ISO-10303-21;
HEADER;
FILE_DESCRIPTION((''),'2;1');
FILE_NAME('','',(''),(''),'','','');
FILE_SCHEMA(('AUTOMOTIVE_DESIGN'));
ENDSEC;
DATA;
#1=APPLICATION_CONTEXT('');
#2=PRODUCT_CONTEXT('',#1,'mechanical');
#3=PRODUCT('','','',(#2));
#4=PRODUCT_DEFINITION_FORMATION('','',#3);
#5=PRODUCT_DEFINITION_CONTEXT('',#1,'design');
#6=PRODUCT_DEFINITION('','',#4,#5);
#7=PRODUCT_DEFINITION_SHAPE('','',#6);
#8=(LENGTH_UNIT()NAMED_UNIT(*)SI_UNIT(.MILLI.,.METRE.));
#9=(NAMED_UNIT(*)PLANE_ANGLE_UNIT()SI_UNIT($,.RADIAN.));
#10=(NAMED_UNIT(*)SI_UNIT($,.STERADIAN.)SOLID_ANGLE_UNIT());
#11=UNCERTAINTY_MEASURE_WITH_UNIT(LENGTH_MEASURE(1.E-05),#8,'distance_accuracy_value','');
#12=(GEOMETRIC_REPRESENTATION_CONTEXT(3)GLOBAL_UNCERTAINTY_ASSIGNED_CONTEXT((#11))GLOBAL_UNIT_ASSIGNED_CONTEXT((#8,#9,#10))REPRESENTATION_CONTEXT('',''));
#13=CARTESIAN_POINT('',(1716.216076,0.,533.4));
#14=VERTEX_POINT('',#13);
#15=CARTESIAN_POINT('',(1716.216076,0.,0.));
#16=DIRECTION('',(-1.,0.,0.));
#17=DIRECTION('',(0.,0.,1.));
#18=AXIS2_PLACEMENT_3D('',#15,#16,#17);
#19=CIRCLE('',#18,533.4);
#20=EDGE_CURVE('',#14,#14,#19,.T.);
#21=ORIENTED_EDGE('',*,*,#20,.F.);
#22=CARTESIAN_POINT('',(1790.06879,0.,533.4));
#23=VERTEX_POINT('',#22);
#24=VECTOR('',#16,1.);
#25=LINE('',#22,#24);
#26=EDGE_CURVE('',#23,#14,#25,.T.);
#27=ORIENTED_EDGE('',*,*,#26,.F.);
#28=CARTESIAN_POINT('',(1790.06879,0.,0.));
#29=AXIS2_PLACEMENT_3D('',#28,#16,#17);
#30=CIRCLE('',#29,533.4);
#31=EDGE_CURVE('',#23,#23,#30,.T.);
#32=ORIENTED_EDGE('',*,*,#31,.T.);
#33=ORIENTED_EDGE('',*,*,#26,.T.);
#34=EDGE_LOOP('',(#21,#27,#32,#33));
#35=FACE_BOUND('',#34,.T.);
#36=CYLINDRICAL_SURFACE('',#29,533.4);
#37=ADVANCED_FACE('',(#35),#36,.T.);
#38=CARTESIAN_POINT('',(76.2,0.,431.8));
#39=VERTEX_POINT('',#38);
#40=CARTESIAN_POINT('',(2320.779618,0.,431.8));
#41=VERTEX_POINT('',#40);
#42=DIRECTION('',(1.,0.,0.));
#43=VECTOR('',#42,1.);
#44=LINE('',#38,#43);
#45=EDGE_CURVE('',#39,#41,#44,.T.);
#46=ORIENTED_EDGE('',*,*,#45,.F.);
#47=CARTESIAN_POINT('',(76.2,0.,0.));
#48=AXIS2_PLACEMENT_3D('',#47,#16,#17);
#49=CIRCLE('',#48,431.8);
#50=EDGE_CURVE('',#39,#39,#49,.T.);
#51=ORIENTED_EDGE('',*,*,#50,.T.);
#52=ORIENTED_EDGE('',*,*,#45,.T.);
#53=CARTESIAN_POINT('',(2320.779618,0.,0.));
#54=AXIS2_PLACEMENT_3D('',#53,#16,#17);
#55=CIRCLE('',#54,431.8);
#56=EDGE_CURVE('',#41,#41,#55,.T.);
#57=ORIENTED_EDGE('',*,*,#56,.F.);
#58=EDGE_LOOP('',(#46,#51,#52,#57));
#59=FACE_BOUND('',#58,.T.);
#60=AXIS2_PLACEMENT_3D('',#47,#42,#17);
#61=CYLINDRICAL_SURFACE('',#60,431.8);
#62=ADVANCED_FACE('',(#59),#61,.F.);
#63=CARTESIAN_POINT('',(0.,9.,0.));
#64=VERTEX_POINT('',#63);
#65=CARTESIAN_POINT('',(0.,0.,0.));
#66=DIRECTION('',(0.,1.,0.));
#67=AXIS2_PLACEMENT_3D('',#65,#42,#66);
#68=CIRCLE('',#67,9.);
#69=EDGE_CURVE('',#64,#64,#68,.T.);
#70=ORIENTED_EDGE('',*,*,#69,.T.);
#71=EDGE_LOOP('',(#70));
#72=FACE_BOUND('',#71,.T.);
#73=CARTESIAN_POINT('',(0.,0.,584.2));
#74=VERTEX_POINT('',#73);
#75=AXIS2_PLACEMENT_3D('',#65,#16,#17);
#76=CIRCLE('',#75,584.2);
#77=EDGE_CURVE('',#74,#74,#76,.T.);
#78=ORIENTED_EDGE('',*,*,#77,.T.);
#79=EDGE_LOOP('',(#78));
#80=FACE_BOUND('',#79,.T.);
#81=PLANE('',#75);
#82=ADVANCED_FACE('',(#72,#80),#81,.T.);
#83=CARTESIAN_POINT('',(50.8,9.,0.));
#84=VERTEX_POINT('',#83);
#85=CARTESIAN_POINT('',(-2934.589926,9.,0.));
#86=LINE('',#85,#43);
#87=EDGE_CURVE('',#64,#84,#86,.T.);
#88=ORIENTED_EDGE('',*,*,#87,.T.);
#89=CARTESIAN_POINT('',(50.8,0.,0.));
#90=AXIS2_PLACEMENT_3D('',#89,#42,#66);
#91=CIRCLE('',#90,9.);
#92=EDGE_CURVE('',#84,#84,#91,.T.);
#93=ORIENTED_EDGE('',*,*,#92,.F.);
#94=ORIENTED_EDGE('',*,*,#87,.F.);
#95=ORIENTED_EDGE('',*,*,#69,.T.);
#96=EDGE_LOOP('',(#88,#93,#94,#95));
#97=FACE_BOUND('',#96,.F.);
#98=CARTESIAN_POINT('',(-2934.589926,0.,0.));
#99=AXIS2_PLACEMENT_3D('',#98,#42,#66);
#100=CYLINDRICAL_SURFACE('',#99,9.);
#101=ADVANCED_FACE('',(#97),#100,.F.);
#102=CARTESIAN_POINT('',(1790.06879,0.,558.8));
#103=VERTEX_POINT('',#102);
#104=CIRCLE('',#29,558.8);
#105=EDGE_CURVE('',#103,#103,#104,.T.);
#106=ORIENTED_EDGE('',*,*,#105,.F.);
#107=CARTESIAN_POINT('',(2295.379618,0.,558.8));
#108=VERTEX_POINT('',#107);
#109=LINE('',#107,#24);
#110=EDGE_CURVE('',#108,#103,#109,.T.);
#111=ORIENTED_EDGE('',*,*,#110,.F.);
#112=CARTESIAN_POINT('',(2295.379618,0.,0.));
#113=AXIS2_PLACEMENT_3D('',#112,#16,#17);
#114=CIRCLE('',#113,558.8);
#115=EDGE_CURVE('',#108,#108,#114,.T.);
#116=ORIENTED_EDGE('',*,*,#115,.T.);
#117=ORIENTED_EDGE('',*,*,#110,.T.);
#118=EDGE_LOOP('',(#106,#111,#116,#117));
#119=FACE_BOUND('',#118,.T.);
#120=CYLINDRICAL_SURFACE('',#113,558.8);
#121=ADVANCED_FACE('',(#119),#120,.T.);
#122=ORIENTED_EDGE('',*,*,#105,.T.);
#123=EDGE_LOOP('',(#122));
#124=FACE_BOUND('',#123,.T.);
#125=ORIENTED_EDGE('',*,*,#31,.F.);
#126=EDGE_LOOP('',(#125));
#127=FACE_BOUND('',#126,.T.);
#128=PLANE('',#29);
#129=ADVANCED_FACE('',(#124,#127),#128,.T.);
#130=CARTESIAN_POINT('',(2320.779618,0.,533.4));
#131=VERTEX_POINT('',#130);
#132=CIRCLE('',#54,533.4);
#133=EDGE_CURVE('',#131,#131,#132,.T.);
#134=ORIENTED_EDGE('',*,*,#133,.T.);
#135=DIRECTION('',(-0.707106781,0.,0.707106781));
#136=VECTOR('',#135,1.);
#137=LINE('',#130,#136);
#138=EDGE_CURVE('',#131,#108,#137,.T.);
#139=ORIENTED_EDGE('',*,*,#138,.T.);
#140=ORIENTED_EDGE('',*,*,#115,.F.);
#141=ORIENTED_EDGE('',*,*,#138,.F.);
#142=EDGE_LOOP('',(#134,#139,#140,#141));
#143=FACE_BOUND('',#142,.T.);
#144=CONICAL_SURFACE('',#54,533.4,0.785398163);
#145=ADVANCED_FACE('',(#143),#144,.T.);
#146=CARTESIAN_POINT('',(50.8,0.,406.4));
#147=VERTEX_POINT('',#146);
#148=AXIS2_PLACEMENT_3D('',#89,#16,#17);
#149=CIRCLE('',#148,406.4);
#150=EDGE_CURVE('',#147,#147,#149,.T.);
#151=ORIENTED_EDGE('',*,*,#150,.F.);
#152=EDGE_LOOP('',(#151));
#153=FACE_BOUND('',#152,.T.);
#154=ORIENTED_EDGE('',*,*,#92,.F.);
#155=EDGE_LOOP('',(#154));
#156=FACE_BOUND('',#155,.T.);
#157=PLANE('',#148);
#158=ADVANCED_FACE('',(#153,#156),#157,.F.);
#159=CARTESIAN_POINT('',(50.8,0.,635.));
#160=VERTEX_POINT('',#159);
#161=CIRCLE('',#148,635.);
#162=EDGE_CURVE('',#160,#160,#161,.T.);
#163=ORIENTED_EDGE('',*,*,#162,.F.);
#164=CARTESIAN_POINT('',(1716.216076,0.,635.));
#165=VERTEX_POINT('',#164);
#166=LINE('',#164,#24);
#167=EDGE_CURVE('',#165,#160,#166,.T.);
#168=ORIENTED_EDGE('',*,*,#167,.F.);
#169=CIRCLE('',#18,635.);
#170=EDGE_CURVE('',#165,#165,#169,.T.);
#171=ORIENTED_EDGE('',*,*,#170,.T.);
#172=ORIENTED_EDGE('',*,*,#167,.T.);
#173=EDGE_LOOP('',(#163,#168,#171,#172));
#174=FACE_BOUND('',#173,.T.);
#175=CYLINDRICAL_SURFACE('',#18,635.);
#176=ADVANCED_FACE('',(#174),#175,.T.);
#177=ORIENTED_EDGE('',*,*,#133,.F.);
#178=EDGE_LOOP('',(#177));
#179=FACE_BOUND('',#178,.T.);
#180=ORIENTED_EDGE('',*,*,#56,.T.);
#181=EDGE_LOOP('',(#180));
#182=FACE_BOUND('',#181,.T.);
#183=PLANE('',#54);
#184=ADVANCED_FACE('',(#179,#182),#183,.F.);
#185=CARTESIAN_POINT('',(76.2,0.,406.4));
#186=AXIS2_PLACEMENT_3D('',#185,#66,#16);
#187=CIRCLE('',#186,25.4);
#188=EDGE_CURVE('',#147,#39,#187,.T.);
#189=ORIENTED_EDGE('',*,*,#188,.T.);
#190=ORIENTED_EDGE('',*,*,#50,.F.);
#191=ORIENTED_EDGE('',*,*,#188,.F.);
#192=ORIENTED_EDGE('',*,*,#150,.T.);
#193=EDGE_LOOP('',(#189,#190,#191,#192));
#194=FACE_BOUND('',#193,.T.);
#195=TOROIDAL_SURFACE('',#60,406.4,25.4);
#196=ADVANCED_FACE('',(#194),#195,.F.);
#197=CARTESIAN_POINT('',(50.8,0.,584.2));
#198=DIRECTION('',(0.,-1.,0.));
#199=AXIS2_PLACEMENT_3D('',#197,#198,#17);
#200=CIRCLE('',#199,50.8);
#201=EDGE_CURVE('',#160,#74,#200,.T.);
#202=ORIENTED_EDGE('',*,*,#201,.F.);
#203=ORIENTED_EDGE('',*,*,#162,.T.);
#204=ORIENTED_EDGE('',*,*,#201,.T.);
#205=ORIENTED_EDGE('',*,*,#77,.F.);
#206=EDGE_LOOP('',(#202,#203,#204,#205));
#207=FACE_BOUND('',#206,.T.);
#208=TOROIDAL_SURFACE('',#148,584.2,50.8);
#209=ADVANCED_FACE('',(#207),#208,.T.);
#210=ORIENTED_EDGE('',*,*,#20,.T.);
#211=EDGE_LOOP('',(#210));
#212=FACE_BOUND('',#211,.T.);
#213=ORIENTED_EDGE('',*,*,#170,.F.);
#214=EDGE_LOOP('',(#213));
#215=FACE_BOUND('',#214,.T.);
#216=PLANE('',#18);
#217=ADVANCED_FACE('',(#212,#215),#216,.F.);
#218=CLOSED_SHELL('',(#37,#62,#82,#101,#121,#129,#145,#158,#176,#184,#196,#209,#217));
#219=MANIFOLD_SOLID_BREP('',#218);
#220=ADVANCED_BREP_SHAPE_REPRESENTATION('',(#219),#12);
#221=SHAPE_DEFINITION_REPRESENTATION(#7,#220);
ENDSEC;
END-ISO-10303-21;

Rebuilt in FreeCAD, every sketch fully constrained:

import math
import FreeCAD as App
import Part
import Sketcher

V = App.Vector
Q = App.Units.Quantity

doc = App.newDocument("Part")
body = doc.addObject("PartDesign::Body", "Body")

# Sketch on XZ plane
sketch1 = body.newObject("Sketcher::SketchObject", "Sketch")
sketch1.AttachmentSupport = (doc.getObject("XZ_Plane"), [""])
sketch1.MapMode = "FlatFace"
sketch1.addGeometry([
    Part.LineSegment(V(0, 584, 0), V(0, 0, 0)),  # 0
    Part.LineSegment(V(0, 0, 0), V(51, 0, 0)),  # 1
    Part.LineSegment(V(51, 0, 0), V(51, 406, 0)),  # 2
    Part.ArcOfCircle(Part.Circle(V(76, 406, 0), V(0, 0, 1), 25), math.radians(90), math.radians(180)),  # 3
    Part.LineSegment(V(76, 432, 0), V(2321, 432, 0)),  # 4
    Part.LineSegment(V(2321, 432, 0), V(2321, 533, 0)),  # 5
    Part.LineSegment(V(2321, 533, 0), V(2295, 559, 0)),  # 6
    Part.LineSegment(V(2295, 559, 0), V(1790, 559, 0)),  # 7
    Part.LineSegment(V(1790, 559, 0), V(1790, 533, 0)),  # 8
    Part.LineSegment(V(1790, 533, 0), V(1716, 533, 0)),  # 9
    Part.LineSegment(V(1716, 533, 0), V(1716, 635, 0)),  # 10
    Part.LineSegment(V(1716, 635, 0), V(51, 635, 0)),  # 11
    Part.ArcOfCircle(Part.Circle(V(51, 584, 0), V(0, 0, 1), 51), math.radians(90), math.radians(180)),  # 12
], False)
sketch1.addConstraint([
    Sketcher.Constraint("Coincident", 0, 2, 1, 1),
    Sketcher.Constraint("Coincident", 1, 2, 2, 1),
    Sketcher.Constraint("Tangent", 2, 2, 3, 2),
    Sketcher.Constraint("Tangent", 3, 1, 4, 1),
    Sketcher.Constraint("Coincident", 4, 2, 5, 1),
    Sketcher.Constraint("Coincident", 5, 2, 6, 1),
    Sketcher.Constraint("Coincident", 6, 2, 7, 1),
    Sketcher.Constraint("Coincident", 7, 2, 8, 1),
    Sketcher.Constraint("Coincident", 8, 2, 9, 1),
    Sketcher.Constraint("Coincident", 9, 2, 10, 1),
    Sketcher.Constraint("Coincident", 10, 2, 11, 1),
    Sketcher.Constraint("Tangent", 11, 2, 12, 1),
    Sketcher.Constraint("Tangent", 12, 2, 0, 1),
    Sketcher.Constraint("Vertical", 0),
    Sketcher.Constraint("Horizontal", 1),
    Sketcher.Constraint("Vertical", 2),
    Sketcher.Constraint("Horizontal", 4),
    Sketcher.Constraint("Vertical", 5),
    Sketcher.Constraint("Horizontal", 7),
    Sketcher.Constraint("Vertical", 8),
    Sketcher.Constraint("Horizontal", 9),
    Sketcher.Constraint("Vertical", 10),
    Sketcher.Constraint("Horizontal", 11),
    Sketcher.Constraint("Coincident", 0, 2, -1, 1),
    Sketcher.Constraint("Horizontal", 5, 2, 8, 2),
    Sketcher.Constraint("Vertical", 12, 3, 1, 2),
    Sketcher.Constraint("Equal", 5, 10),
    Sketcher.Constraint("Radius", 3, Q("1 in")),
    Sketcher.Constraint("Radius", 12, Q("2 in")),
    Sketcher.Constraint("DistanceY", 0, 2, 0, 1, Q("23 in")),
    Sketcher.Constraint("DistanceY", 2, 1, 2, 2, Q("16 in")),
    Sketcher.Constraint("DistanceY", 8, 2, 8, 1, Q("1 in")),
    Sketcher.Constraint("Angle", 6, Q("135 deg")),
    Sketcher.Constraint("DistanceX", 4, 1, 4, 2, 2244.579618),
    Sketcher.Constraint("DistanceX", 7, 2, 7, 1, 505.310828),
    Sketcher.Constraint("DistanceX", 9, 2, 9, 1, 73.852714),
])
revolution = body.newObject("PartDesign::Revolution", "Revolution")
revolution.Profile = sketch1
revolution.ReferenceAxis = (sketch1, ["H_Axis"])
revolution.Angle = 360

# Sketch on YZ plane
sketch2 = body.newObject("Sketcher::SketchObject", "Sketch001")
sketch2.AttachmentSupport = (doc.getObject("YZ_Plane"), [""])
sketch2.MapMode = "FlatFace"
sketch2.addGeometry(Part.Circle(V(0, 0, 0), V(0, 0, 1), 9), False)
sketch2.addConstraint([
    Sketcher.Constraint("Coincident", 0, 3, -1, 1),
    Sketcher.Constraint("Diameter", 0, 18.0),
])
doc.recompute()
hole = body.newObject("PartDesign::Hole", "Hole")
hole.Profile = sketch2
hole.ThreadType = "None"
hole.Diameter = 18
hole.DepthType = "ThroughAll"
hole.Reversed = True

doc.recompute()
